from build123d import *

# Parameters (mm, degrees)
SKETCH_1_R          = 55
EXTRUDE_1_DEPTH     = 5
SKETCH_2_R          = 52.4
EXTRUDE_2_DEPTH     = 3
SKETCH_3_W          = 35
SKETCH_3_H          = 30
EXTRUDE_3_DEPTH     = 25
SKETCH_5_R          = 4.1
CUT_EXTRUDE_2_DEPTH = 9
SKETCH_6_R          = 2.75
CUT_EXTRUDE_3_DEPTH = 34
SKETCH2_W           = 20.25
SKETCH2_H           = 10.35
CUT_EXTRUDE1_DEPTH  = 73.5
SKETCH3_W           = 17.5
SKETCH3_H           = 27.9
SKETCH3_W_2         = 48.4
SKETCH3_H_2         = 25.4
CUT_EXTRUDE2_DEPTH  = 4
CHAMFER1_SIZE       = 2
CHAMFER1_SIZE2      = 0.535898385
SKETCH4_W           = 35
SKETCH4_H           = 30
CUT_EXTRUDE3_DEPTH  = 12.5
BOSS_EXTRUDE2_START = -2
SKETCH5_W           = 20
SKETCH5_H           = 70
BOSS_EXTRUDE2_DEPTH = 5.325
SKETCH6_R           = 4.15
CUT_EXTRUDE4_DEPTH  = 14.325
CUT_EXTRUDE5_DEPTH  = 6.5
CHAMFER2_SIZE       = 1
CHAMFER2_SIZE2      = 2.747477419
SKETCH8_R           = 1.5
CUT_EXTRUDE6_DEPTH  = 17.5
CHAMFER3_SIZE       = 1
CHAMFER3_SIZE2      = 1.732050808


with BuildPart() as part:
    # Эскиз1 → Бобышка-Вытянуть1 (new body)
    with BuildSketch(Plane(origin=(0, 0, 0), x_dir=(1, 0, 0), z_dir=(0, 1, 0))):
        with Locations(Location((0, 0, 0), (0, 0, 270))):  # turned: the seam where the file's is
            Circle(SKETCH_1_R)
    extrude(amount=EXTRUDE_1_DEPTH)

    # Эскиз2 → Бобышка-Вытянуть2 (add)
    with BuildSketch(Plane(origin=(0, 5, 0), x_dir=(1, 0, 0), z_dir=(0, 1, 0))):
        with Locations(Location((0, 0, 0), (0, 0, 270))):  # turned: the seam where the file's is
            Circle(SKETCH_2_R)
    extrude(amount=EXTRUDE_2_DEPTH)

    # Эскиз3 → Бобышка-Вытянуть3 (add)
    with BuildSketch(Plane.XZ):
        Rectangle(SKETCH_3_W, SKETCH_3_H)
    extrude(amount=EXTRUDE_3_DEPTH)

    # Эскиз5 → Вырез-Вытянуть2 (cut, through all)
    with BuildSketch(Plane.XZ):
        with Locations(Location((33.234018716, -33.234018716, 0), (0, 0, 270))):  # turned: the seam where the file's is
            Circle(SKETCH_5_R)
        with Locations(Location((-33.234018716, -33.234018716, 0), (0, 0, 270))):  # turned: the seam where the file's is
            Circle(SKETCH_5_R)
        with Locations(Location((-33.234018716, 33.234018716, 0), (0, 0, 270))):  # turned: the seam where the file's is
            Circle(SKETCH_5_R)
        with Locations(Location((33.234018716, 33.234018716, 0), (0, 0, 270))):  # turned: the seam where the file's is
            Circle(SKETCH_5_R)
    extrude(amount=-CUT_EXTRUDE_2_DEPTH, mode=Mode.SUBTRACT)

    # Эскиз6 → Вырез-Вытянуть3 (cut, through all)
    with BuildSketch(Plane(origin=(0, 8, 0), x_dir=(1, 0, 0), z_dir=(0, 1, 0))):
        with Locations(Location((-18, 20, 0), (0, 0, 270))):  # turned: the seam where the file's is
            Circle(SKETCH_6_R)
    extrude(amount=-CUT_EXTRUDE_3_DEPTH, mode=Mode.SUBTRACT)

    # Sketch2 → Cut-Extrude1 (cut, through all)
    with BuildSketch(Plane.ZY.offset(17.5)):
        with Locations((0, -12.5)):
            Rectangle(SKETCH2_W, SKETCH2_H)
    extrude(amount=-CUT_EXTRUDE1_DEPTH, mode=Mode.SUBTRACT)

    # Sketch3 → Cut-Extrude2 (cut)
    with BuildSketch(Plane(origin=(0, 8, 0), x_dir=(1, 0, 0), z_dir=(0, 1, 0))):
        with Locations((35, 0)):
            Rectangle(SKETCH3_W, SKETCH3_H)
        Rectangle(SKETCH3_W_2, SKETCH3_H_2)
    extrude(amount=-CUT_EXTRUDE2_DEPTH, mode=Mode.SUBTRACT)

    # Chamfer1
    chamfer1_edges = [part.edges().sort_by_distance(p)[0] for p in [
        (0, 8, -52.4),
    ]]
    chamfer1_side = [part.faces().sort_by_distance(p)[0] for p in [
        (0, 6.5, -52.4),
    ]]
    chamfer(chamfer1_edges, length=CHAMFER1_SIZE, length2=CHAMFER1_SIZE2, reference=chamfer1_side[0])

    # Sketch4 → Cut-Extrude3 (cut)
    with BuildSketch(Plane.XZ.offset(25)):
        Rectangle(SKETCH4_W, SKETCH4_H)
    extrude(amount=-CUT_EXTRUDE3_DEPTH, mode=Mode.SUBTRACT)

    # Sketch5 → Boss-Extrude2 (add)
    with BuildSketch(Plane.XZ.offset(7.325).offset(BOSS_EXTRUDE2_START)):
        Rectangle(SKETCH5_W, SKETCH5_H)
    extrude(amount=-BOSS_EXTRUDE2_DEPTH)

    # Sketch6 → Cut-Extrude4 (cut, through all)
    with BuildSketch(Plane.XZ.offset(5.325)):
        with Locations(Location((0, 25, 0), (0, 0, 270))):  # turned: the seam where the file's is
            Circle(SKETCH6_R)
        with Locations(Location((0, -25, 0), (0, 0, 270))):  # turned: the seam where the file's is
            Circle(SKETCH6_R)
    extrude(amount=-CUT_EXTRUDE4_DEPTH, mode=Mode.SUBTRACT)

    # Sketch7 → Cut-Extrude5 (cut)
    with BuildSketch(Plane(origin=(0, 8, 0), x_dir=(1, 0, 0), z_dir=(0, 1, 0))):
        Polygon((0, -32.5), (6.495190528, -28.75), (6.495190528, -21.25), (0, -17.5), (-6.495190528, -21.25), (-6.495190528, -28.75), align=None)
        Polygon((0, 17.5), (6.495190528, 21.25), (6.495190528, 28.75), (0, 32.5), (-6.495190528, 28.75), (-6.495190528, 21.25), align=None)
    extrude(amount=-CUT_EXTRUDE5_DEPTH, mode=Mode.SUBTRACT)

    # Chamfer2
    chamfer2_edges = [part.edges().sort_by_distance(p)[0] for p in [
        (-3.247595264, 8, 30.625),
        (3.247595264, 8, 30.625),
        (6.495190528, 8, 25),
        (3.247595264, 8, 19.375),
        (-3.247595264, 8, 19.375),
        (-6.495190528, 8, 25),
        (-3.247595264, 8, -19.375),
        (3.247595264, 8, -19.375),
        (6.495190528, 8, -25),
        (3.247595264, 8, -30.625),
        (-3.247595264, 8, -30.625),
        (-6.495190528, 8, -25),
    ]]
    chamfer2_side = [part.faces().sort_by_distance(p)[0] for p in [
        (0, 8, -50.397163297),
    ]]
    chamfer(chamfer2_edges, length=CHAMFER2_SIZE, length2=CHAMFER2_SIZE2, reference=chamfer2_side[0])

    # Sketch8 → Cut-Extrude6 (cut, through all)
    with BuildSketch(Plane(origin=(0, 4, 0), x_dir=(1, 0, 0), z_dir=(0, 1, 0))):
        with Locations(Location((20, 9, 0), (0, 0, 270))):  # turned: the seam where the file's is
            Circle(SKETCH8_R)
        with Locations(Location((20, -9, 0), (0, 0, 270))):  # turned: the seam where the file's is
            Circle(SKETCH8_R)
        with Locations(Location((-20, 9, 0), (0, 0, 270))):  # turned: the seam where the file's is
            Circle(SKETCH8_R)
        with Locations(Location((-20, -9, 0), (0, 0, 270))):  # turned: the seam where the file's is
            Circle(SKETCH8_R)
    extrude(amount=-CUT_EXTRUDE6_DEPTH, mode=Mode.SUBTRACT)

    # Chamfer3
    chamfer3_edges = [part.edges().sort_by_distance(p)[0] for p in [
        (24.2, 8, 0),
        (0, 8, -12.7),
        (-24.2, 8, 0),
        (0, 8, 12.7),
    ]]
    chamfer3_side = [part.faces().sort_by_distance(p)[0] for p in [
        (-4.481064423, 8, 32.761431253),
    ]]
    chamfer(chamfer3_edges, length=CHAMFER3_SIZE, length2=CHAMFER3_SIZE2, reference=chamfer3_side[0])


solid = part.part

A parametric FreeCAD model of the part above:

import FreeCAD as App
import Part
import Sketcher

V = App.Vector
Q = App.Units.Quantity


def edges_at(feature, points):
    """Names of the edges that pass closest to the given points."""
    edges = feature.Shape.Edges
    near = lambda p: min(range(len(edges)), key=lambda i: edges[i].distToShape(Part.Vertex(*p))[0])
    return sorted({f"Edge{near(p) + 1}" for p in points})


def add_polygon(sketch, points):
    """Adds a closed chain of lines whose ends are joined by coincident constraints."""
    first, n = sketch.GeometryCount, len(points)
    for a, b in zip(points, points[1:] + points[:1]):
        sketch.addGeometry(Part.LineSegment(App.Vector(*a, 0), App.Vector(*b, 0)), False)
    for i in range(n):
        sketch.addConstraint(Sketcher.Constraint("Coincident", first + i, 2, first + (i + 1) % n, 1))

doc = App.newDocument("Part")
params = doc.addObject("Spreadsheet::Sheet", "Params")
for row, (alias, value) in enumerate([
    ("sketch1_diameter", "110 mm"),
    ("pad1_length", "5 mm"),
    ("sketch2_diameter", "104.8 mm"),
    ("pad2_length", "3 mm"),
    ("sketch3_width", "35 mm"),
    ("sketch3_height", "30 mm"),
    ("pad3_length", "25 mm"),
    ("sketch4_diameter", "8.2 mm"),
    ("sketch5_diameter", "5.5 mm"),
    ("sketch6_width", "10.35 mm"),
    ("sketch6_height", "20.25 mm"),
    ("sketch7_width", "17.5 mm"),
    ("sketch7_width2", "48.4 mm"),
    ("sketch7_height", "27.9 mm"),
    ("sketch7_height2", "25.4 mm"),
    ("pocket4_length", "4 mm"),
    ("chamfer_size", "2 mm"),
    ("chamfer_size2", "0.535898 mm"),
    ("sketch8_width", "35 mm"),
    ("sketch8_height", "30 mm"),
    ("pocket5_length", "12.5 mm"),
    ("sketch9_width", "20 mm"),
    ("sketch9_height", "70 mm"),
    ("pad4_length", "5.325 mm"),
    ("sketch10_diameter", "8.3 mm"),
    ("sketch11_height", "7.5 mm"),
    ("pocket7_length", "6.5 mm"),
    ("chamfer2_size", "1 mm"),
    ("chamfer2_size2", "2.747477 mm"),
    ("sketch12_diameter", "3 mm"),
    ("chamfer3_size", "1 mm"),
    ("chamfer3_size2", "1.732051 mm"),
], start=1):
    params.set(f"A{row}", alias)
    params.set(f"B{row}", "=" + value)
    params.setAlias(f"B{row}", alias)

body = doc.addObject("PartDesign::Body", "Body")

# Sketch on XZ plane
sketch1 = body.newObject("Sketcher::SketchObject", "Sketch")
sketch1.AttachmentSupport = (doc.getObject("XZ_Plane"), [""])
sketch1.MapMode = "FlatFace"
sketch1.addGeometry(Part.Circle(V(0, 0, 0), V(0, 0, 1), 55), False)
sketch1.addConstraint(Sketcher.Constraint("Coincident", 0, 3, -1, 1))
sketch1.addConstraint(Sketcher.Constraint("Diameter", 0, Q("110 mm")))
sketch1.setExpression("Constraints[1]", "Params.sketch1_diameter")
pad1 = body.newObject("PartDesign::Pad", "Pad")
pad1.Profile = sketch1
pad1.setExpression("Length", "Params.pad1_length")
pad1.Reversed = True

# Sketch on XZ plane
sketch2 = body.newObject("Sketcher::SketchObject", "Sketch001")
sketch2.AttachmentSupport = (doc.getObject("XZ_Plane"), [""])
sketch2.MapMode = "FlatFace"
sketch2.AttachmentOffset = App.Placement(V(0, 0, -5), App.Rotation())
sketch2.addGeometry(Part.Circle(V(0, 0, 0), V(0, 0, 1), 52.4), False)
sketch2.addConstraint(Sketcher.Constraint("Coincident", 0, 3, -1, 1))
sketch2.addConstraint(Sketcher.Constraint("Diameter", 0, Q("104.8 mm")))
sketch2.setExpression("Constraints[1]", "Params.sketch2_diameter")
pad2 = body.newObject("PartDesign::Pad", "Pad001")
pad2.Profile = sketch2
pad2.setExpression("Length", "Params.pad2_length")
pad2.Reversed = True

# Sketch on XZ plane
sketch3 = body.newObject("Sketcher::SketchObject", "Sketch002")
sketch3.AttachmentSupport = (doc.getObject("XZ_Plane"), [""])
sketch3.MapMode = "FlatFace"
add_polygon(sketch3, [(-17.5, 15), (-17.5, -15), (17.5, -15), (17.5, 15)])  # lines 0-3
sketch3.addConstraint(Sketcher.Constraint("Vertical", 0))
sketch3.addConstraint(Sketcher.Constraint("Horizontal", 1))
sketch3.addConstraint(Sketcher.Constraint("Vertical", 2))
sketch3.addConstraint(Sketcher.Constraint("Horizontal", 3))
sketch3.addConstraint(Sketcher.Constraint("Symmetric", 0, 2, 2, 2, -1, 1))
sketch3.addConstraint(Sketcher.Constraint("DistanceX", 1, 1, 1, 2, Q("35 mm")))
sketch3.addConstraint(Sketcher.Constraint("DistanceY", 0, 2, 0, 1, Q("30 mm")))
sketch3.setExpression("Constraints[9]", "Params.sketch3_width")
sketch3.setExpression("Constraints[10]", "Params.sketch3_height")
pad3 = body.newObject("PartDesign::Pad", "Pad002")
pad3.Profile = sketch3
pad3.setExpression("Length", "Params.pad3_length")

# Sketch on XZ plane
sketch4 = body.newObject("Sketcher::SketchObject", "Sketch003")
sketch4.AttachmentSupport = (doc.getObject("XZ_Plane"), [""])
sketch4.MapMode = "FlatFace"
sketch4.addGeometry(Part.Circle(V(33.234019, -33.234019, 0), V(0, 0, 1), 4.1), False)
sketch4.addGeometry(Part.Circle(V(-33.234019, -33.234019, 0), V(0, 0, 1), 4.1), False)
sketch4.addGeometry(Part.Circle(V(-33.234019, 33.234019, 0), V(0, 0, 1), 4.1), False)
sketch4.addGeometry(Part.Circle(V(33.234019, 33.234019, 0), V(0, 0, 1), 4.1), False)
sketch4.addConstraint(Sketcher.Constraint("Equal", 0, 1))
sketch4.addConstraint(Sketcher.Constraint("Equal", 1, 2))
sketch4.addConstraint(Sketcher.Constraint("Equal", 2, 3))
sketch4.addConstraint(Sketcher.Constraint("Symmetric", 0, 3, 2, 3, -1, 1))
sketch4.addConstraint(Sketcher.Constraint("Symmetric", 1, 3, 3, 3, -1, 1))
sketch4.addConstraint(Sketcher.Constraint("Symmetric", 0, 3, 1, 3, -2))
sketch4.addConstraint(Sketcher.Constraint("Diameter", 0, Q("8.2 mm")))
sketch4.addConstraint(Sketcher.Constraint("DistanceX", -1, 1, 0, 3, Q("33.234019 mm")))
sketch4.addConstraint(Sketcher.Constraint("DistanceY", 0, 3, -1, 1, Q("33.234019 mm")))
sketch4.setExpression("Constraints[6]", "Params.sketch4_diameter")
pocket1 = body.newObject("PartDesign::Pocket", "Pocket")
pocket1.Profile = sketch4
pocket1.Type = "ThroughAll"

# Sketch on XZ plane
sketch5 = body.newObject("Sketcher::SketchObject", "Sketch004")
sketch5.AttachmentSupport = (doc.getObject("XZ_Plane"), [""])
sketch5.MapMode = "FlatFace"
sketch5.AttachmentOffset = App.Placement(V(0, 0, -8), App.Rotation())
sketch5.addGeometry(Part.Circle(V(-18, -20, 0), V(0, 0, 1), 2.75), False)
sketch5.addConstraint(Sketcher.Constraint("Diameter", 0, Q("5.5 mm")))
sketch5.addConstraint(Sketcher.Constraint("DistanceX", 0, 3, -1, 1, Q("18 mm")))
sketch5.addConstraint(Sketcher.Constraint("DistanceY", 0, 3, -1, 1, Q("20 mm")))
sketch5.setExpression("Constraints[0]", "Params.sketch5_diameter")
pocket2 = body.newObject("PartDesign::Pocket", "Pocket001")
pocket2.Profile = sketch5
pocket2.Type = "ThroughAll"
pocket2.Reversed = True

# Sketch on YZ plane
sketch6 = body.newObject("Sketcher::SketchObject", "Sketch005")
sketch6.AttachmentSupport = (doc.getObject("YZ_Plane"), [""])
sketch6.MapMode = "FlatFace"
sketch6.AttachmentOffset = App.Placement(V(0, 0, -17.5), App.Rotation())
add_polygon(sketch6, [(-7.325, -10.125), (-17.675, -10.125), (-17.675, 10.125), (-7.325, 10.125)])  # lines 0-3
sketch6.addConstraint(Sketcher.Constraint("Horizontal", 0))
sketch6.addConstraint(Sketcher.Constraint("Vertical", 1))
sketch6.addConstraint(Sketcher.Constraint("Horizontal", 2))
sketch6.addConstraint(Sketcher.Constraint("Vertical", 3))
sketch6.addConstraint(Sketcher.Constraint("DistanceX", 0, 2, 0, 1, Q("10.35 mm")))
sketch6.addConstraint(Sketcher.Constraint("DistanceY", 1, 1, 1, 2, Q("20.25 mm")))
sketch6.addConstraint(Sketcher.Constraint("DistanceX", 0, 2, -1, 1, Q("17.675 mm")))
sketch6.addConstraint(Sketcher.Constraint("DistanceY", 0, 2, -1, 1, Q("10.125 mm")))
sketch6.setExpression("Constraints[8]", "Params.sketch6_width")
sketch6.setExpression("Constraints[9]", "Params.sketch6_height")
pocket3 = body.newObject("PartDesign::Pocket", "Pocket002")
pocket3.Profile = sketch6
pocket3.Type = "ThroughAll"
pocket3.Reversed = True

# Sketch on XZ plane
sketch7 = body.newObject("Sketcher::SketchObject", "Sketch006")
sketch7.AttachmentSupport = (doc.getObject("XZ_Plane"), [""])
sketch7.MapMode = "FlatFace"
sketch7.AttachmentOffset = App.Placement(V(0, 0, -8), App.Rotation())
add_polygon(sketch7, [(26.25, -13.95), (26.25, 13.95), (43.75, 13.95), (43.75, -13.95)])  # lines 0-3
add_polygon(sketch7, [(-24.2, -12.7), (-24.2, 12.7), (24.2, 12.7), (24.2, -12.7)])  # lines 4-7
sketch7.addConstraint(Sketcher.Constraint("Vertical", 0))
sketch7.addConstraint(Sketcher.Constraint("Horizontal", 1))
sketch7.addConstraint(Sketcher.Constraint("Vertical", 2))
sketch7.addConstraint(Sketcher.Constraint("Horizontal", 3))
sketch7.addConstraint(Sketcher.Constraint("Vertical", 4))
sketch7.addConstraint(Sketcher.Constraint("Horizontal", 5))
sketch7.addConstraint(Sketcher.Constraint("Vertical", 6))
sketch7.addConstraint(Sketcher.Constraint("Horizontal", 7))
sketch7.addConstraint(Sketcher.Constraint("Symmetric", 4, 2, 6, 2, -1, 1))
sketch7.addConstraint(Sketcher.Constraint("DistanceX", 1, 1, 1, 2, Q("17.5 mm")))
sketch7.addConstraint(Sketcher.Constraint("DistanceX", 5, 1, 5, 2, Q("48.4 mm")))
sketch7.addConstraint(Sketcher.Constraint("DistanceY", 0, 1, 0, 2, Q("27.9 mm")))
sketch7.addConstraint(Sketcher.Constraint("DistanceY", 4, 1, 4, 2, Q("25.4 mm")))
sketch7.addConstraint(Sketcher.Constraint("DistanceX", -1, 1, 0, 2, Q("26.25 mm")))
sketch7.addConstraint(Sketcher.Constraint("DistanceY", -1, 1, 0, 2, Q("13.95 mm")))
sketch7.setExpression("Constraints[17]", "Params.sketch7_width")
sketch7.setExpression("Constraints[18]", "Params.sketch7_width2")
sketch7.setExpression("Constraints[19]", "Params.sketch7_height")
sketch7.setExpression("Constraints[20]", "Params.sketch7_height2")
pocket4 = body.newObject("PartDesign::Pocket", "Pocket003")
pocket4.Profile = sketch7
pocket4.setExpression("Length", "Params.pocket4_length")
pocket4.Reversed = True
doc.recompute()

chamfer = body.newObject("PartDesign::Chamfer", "Chamfer")
chamfer.Base = (pocket4, edges_at(pocket4, [(0, 8, -52.4)]))
chamfer.ChamferType = "Two distances"
chamfer.setExpression("Size", "Params.chamfer_size")
chamfer.setExpression("Size2", "Params.chamfer_size2")

# Sketch on XZ plane
sketch8 = body.newObject("Sketcher::SketchObject", "Sketch007")
sketch8.AttachmentSupport = (doc.getObject("XZ_Plane"), [""])
sketch8.MapMode = "FlatFace"
sketch8.AttachmentOffset = App.Placement(V(0, 0, 25), App.Rotation())
add_polygon(sketch8, [(-17.5, 15), (-17.5, -15), (17.5, -15), (17.5, 15)])  # lines 0-3
sketch8.addConstraint(Sketcher.Constraint("Vertical", 0))
sketch8.addConstraint(Sketcher.Constraint("Horizontal", 1))
sketch8.addConstraint(Sketcher.Constraint("Vertical", 2))
sketch8.addConstraint(Sketcher.Constraint("Horizontal", 3))
sketch8.addConstraint(Sketcher.Constraint("Symmetric", 0, 2, 2, 2, -1, 1))
sketch8.addConstraint(Sketcher.Constraint("DistanceX", 1, 1, 1, 2, Q("35 mm")))
sketch8.addConstraint(Sketcher.Constraint("DistanceY", 0, 2, 0, 1, Q("30 mm")))
sketch8.setExpression("Constraints[9]", "Params.sketch8_width")
sketch8.setExpression("Constraints[10]", "Params.sketch8_height")
pocket5 = body.newObject("PartDesign::Pocket", "Pocket004")
pocket5.Profile = sketch8
pocket5.setExpression("Length", "Params.pocket5_length")

# Sketch on XZ plane
sketch9 = body.newObject("Sketcher::SketchObject", "Sketch008")
sketch9.AttachmentSupport = (doc.getObject("XZ_Plane"), [""])
sketch9.MapMode = "FlatFace"
sketch9.AttachmentOffset = App.Placement(V(0, 0, 5.325), App.Rotation())
add_polygon(sketch9, [(-10, 35), (-10, -35), (10, -35), (10, 35)])  # lines 0-3
sketch9.addConstraint(Sketcher.Constraint("Vertical", 0))
sketch9.addConstraint(Sketcher.Constraint("Horizontal", 1))
sketch9.addConstraint(Sketcher.Constraint("Vertical", 2))
sketch9.addConstraint(Sketcher.Constraint("Horizontal", 3))
sketch9.addConstraint(Sketcher.Constraint("Symmetric", 0, 2, 2, 2, -1, 1))
sketch9.addConstraint(Sketcher.Constraint("DistanceX", 1, 1, 1, 2, Q("20 mm")))
sketch9.addConstraint(Sketcher.Constraint("DistanceY", 0, 2, 0, 1, Q("70 mm")))
sketch9.setExpression("Constraints[9]", "Params.sketch9_width")
sketch9.setExpression("Constraints[10]", "Params.sketch9_height")
pad4 = body.newObject("PartDesign::Pad", "Pad003")
pad4.Profile = sketch9
pad4.setExpression("Length", "Params.pad4_length")
pad4.Reversed = True

# Sketch on XZ plane
sketch10 = body.newObject("Sketcher::SketchObject", "Sketch009")
sketch10.AttachmentSupport = (doc.getObject("XZ_Plane"), [""])
sketch10.MapMode = "FlatFace"
sketch10.AttachmentOffset = App.Placement(V(0, 0, 5.325), App.Rotation())
sketch10.addGeometry(Part.Circle(V(0, 25, 0), V(0, 0, 1), 4.15), False)
sketch10.addGeometry(Part.Circle(V(0, -25, 0), V(0, 0, 1), 4.15), False)
sketch10.addConstraint(Sketcher.Constraint("Equal", 0, 1))
sketch10.addConstraint(Sketcher.Constraint("Symmetric", 0, 3, 1, 3, -1, 1))
sketch10.addConstraint(Sketcher.Constraint("PointOnObject", 0, 3, -2))
sketch10.addConstraint(Sketcher.Constraint("Diameter", 0, Q("8.3 mm")))
sketch10.addConstraint(Sketcher.Constraint("DistanceY", -1, 1, 0, 3, Q("25 mm")))
sketch10.setExpression("Constraints[3]", "Params.sketch10_diameter")
pocket6 = body.newObject("PartDesign::Pocket", "Pocket005")
pocket6.Profile = sketch10
pocket6.Type = "ThroughAll"

# Sketch on XZ plane
sketch11 = body.newObject("Sketcher::SketchObject", "Sketch010")
sketch11.AttachmentSupport = (doc.getObject("XZ_Plane"), [""])
sketch11.MapMode = "FlatFace"
sketch11.AttachmentOffset = App.Placement(V(0, 0, -8), App.Rotation())
add_polygon(sketch11, [(0, 32.5), (6.495191, 28.75), (6.495191, 21.25), (0, 17.5), (-6.495191, 21.25), (-6.495191, 28.75)])  # lines 0-5
add_polygon(sketch11, [(0, -17.5), (6.495191, -21.25), (6.495191, -28.75), (0, -32.5), (-6.495191, -28.75), (-6.495191, -21.25)])  # lines 6-11
sketch11.addConstraint(Sketcher.Constraint("Vertical", 1))
sketch11.addConstraint(Sketcher.Constraint("Vertical", 4))
sketch11.addConstraint(Sketcher.Constraint("Vertical", 7))
sketch11.addConstraint(Sketcher.Constraint("Vertical", 10))
sketch11.addConstraint(Sketcher.Constraint("Symmetric", 3, 2, 6, 2, -1, 1))
sketch11.addConstraint(Sketcher.Constraint("Symmetric", 5, 2, 8, 2, -1, 1))
sketch11.addConstraint(Sketcher.Constraint("Symmetric", 0, 2, 9, 2, -1, 1))
sketch11.addConstraint(Sketcher.Constraint("Symmetric", 2, 2, 11, 2, -1, 1))
sketch11.addConstraint(Sketcher.Constraint("Symmetric", 1, 2, 3, 2, -2))
sketch11.addConstraint(Sketcher.Constraint("PointOnObject", 2, 2, -2))
sketch11.addConstraint(Sketcher.Constraint("PointOnObject", 5, 2, -2))
sketch11.addConstraint(Sketcher.Constraint("Parallel", 0, 3))
sketch11.addConstraint(Sketcher.Constraint("Parallel", 2, 5))
sketch11.addConstraint(Sketcher.Constraint("Parallel", 5, 8))
sketch11.addConstraint(Sketcher.Constraint("Parallel", 8, 11))
sketch11.addConstraint(Sketcher.Constraint("Angle", 0, Q("-30 deg")))
sketch11.addConstraint(Sketcher.Constraint("DistanceY", 1, 2, 1, 1, Q("7.5 mm")))
sketch11.addConstraint(Sketcher.Constraint("DistanceY", 2, 2, 5, 2, Q("15 mm")))
sketch11.addConstraint(Sketcher.Constraint("DistanceY", 6, 2, 0, 2, Q("50 mm")))
sketch11.setExpression("Constraints[28]", "Params.sketch11_height")
pocket7 = body.newObject("PartDesign::Pocket", "Pocket006")
pocket7.Profile = sketch11
pocket7.setExpression("Length", "Params.pocket7_length")
pocket7.Reversed = True
doc.recompute()

chamfer2 = body.newObject("PartDesign::Chamfer", "Chamfer001")
chamfer2.Base = (pocket7, edges_at(pocket7, [
    (-3.248, 8, 30.625),
    (3.248, 8, 30.625),
    (6.495, 8, 25),
    (3.248, 8, 19.375),
    (-3.248, 8, 19.375),
    (-6.495, 8, 25),
    (-3.248, 8, -19.375),
    (3.248, 8, -19.375),
    (6.495, 8, -25),
    (3.248, 8, -30.625),
    (-3.248, 8, -30.625),
    (-6.495, 8, -25),
]))
chamfer2.ChamferType = "Two distances"
chamfer2.setExpression("Size", "Params.chamfer2_size")
chamfer2.setExpression("Size2", "Params.chamfer2_size2")

# Sketch on XZ plane
sketch12 = body.newObject("Sketcher::SketchObject", "Sketch011")
sketch12.AttachmentSupport = (doc.getObject("XZ_Plane"), [""])
sketch12.MapMode = "FlatFace"
sketch12.AttachmentOffset = App.Placement(V(0, 0, -4), App.Rotation())
sketch12.addGeometry(Part.Circle(V(20, -9, 0), V(0, 0, 1), 1.5), False)
sketch12.addGeometry(Part.Circle(V(20, 9, 0), V(0, 0, 1), 1.5), False)
sketch12.addGeometry(Part.Circle(V(-20, -9, 0), V(0, 0, 1), 1.5), False)
sketch12.addGeometry(Part.Circle(V(-20, 9, 0), V(0, 0, 1), 1.5), False)
sketch12.addConstraint(Sketcher.Constraint("Equal", 0, 1))
sketch12.addConstraint(Sketcher.Constraint("Equal", 1, 2))
sketch12.addConstraint(Sketcher.Constraint("Equal", 2, 3))
sketch12.addConstraint(Sketcher.Constraint("Symmetric", 1, 3, 2, 3, -1, 1))
sketch12.addConstraint(Sketcher.Constraint("Symmetric", 0, 3, 3, 3, -1, 1))
sketch12.addConstraint(Sketcher.Constraint("Symmetric", 0, 3, 2, 3, -2))
sketch12.addConstraint(Sketcher.Constraint("Diameter", 0, Q("3 mm")))
sketch12.addConstraint(Sketcher.Constraint("DistanceX", -1, 1, 0, 3, Q("20 mm")))
sketch12.addConstraint(Sketcher.Constraint("DistanceY", 0, 3, -1, 1, Q("9 mm")))
sketch12.setExpression("Constraints[6]", "Params.sketch12_diameter")
pocket8 = body.newObject("PartDesign::Pocket", "Pocket007")
pocket8.Profile = sketch12
pocket8.Type = "ThroughAll"
pocket8.Reversed = True
doc.recompute()

chamfer3 = body.newObject("PartDesign::Chamfer", "Chamfer002")
chamfer3.Base = (pocket8, edges_at(pocket8, [
    (24.2, 8, 0),
    (0, 8, -12.7),
    (-24.2, 8, 0),
    (0, 8, 12.7),
]))
chamfer3.ChamferType = "Two distances"
chamfer3.setExpression("Size", "Params.chamfer3_size")
chamfer3.setExpression("Size2", "Params.chamfer3_size2")

doc.recompute()
